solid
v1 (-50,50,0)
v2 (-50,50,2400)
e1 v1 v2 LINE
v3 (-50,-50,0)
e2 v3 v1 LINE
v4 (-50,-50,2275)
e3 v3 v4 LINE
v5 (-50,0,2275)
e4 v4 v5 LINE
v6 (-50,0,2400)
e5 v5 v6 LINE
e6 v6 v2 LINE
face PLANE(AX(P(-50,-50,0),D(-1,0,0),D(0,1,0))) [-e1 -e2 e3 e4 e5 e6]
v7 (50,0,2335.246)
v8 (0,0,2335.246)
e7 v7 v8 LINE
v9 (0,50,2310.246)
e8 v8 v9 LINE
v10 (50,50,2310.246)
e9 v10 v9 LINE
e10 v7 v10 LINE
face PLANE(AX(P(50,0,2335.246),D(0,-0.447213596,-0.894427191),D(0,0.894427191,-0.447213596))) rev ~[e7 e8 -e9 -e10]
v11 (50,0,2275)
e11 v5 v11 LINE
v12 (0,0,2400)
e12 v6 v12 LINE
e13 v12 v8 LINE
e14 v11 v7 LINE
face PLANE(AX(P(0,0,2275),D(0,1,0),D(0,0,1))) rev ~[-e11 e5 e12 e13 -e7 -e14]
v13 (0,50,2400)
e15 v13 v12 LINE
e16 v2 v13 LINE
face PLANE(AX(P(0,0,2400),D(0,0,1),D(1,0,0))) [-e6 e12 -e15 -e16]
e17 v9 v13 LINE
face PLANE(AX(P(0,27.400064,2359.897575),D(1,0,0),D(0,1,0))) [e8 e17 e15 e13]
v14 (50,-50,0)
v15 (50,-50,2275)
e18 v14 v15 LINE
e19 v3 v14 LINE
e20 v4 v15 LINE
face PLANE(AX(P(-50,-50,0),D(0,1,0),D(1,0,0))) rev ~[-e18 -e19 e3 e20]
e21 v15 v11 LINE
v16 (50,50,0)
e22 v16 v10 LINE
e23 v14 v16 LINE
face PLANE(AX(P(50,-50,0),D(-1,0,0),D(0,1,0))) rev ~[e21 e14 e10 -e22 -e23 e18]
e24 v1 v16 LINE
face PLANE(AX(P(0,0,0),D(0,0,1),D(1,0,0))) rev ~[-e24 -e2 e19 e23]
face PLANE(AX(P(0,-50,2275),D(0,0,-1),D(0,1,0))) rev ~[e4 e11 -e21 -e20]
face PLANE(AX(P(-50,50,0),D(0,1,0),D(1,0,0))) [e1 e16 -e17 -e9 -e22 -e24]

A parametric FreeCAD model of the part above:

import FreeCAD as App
import Part
import Sketcher


def add_polygon(sketch, points):
    """Adds a closed chain of lines whose ends are joined by coincident constraints."""
    first, n = sketch.GeometryCount, len(points)
    for a, b in zip(points, points[1:] + points[:1]):
        sketch.addGeometry(Part.LineSegment(App.Vector(*a, 0), App.Vector(*b, 0)), False)
    for i in range(n):
        sketch.addConstraint(Sketcher.Constraint("Coincident", first + i, 2, first + (i + 1) % n, 1))

doc = App.newDocument("Part")
params = doc.addObject("Spreadsheet::Sheet", "Params")
for row, (alias, value) in enumerate([
    ("sketch1_width", "100 mm"),
    ("pad1_length", "2400 mm"),
    ("sketch2_width", "50 mm"),
    ("sketch2_height", "125 mm"),
    ("sketch3_width", "50 mm"),
    ("pocket2_length", "50 mm"),
], start=1):
    params.set(f"A{row}", alias)
    params.set(f"B{row}", "=" + value)
    params.setAlias(f"B{row}", alias)

body = doc.addObject("PartDesign::Body", "Body")

# Sketch on XY plane
sketch1 = doc.addObject("Sketcher::SketchObject", "Sketch")
body.addObject(sketch1)
sketch1.AttachmentSupport = (doc.XY_Plane, [""])
sketch1.MapMode = "FlatFace"
add_polygon(sketch1, [(-50, 50), (-50, -50), (50, -50), (50, 50)])  # lines 0-3
sketch1.addConstraint([
    Sketcher.Constraint("Vertical", 0),
    Sketcher.Constraint("Horizontal", 1),
    Sketcher.Constraint("Vertical", 2),
    Sketcher.Constraint("Horizontal", 3),
    Sketcher.Constraint("Symmetric", 0, 2, 2, 2, -1, 1),
    Sketcher.Constraint("Equal", 3, 0),
    Sketcher.Constraint("DistanceX", 1, 1, 1, 2, 100.0),
])
sketch1.setExpression("Constraints[10]", "Params.sketch1_width")
pad1 = doc.addObject("PartDesign::Pad", "Pad")
body.addObject(pad1)
pad1.Profile = sketch1
pad1.setExpression("Length", "Params.pad1_length")

# Sketch on YZ plane
sketch2 = doc.addObject("Sketcher::SketchObject", "Sketch001")
body.addObject(sketch2)
sketch2.AttachmentSupport = (doc.YZ_Plane, [""])
sketch2.MapMode = "FlatFace"
add_polygon(sketch2, [(-50, 2400), (-50, 2275), (0, 2275), (0, 2400)])  # lines 0-3
sketch2.addConstraint([
    Sketcher.Constraint("Vertical", 0),
    Sketcher.Constraint("Horizontal", 1),
    Sketcher.Constraint("Vertical", 2),
    Sketcher.Constraint("Horizontal", 3),
    Sketcher.Constraint("PointOnObject", 1, 2, -2),
    Sketcher.Constraint("DistanceX", 1, 1, 1, 2, 50.0),
    Sketcher.Constraint("DistanceY", 0, 2, 0, 1, 125.0),
    Sketcher.Constraint("DistanceY", -1, 1, 0, 2, 2275.0),
])
sketch2.setExpression("Constraints[9]", "Params.sketch2_width")
sketch2.setExpression("Constraints[10]", "Params.sketch2_height")
pocket1 = doc.addObject("PartDesign::Pocket", "Pocket")
body.addObject(pocket1)
pocket1.Profile = sketch2
pocket1.Type = "ThroughAll"
pocket1.Midplane = True

# Sketch on YZ plane
sketch3 = doc.addObject("Sketcher::SketchObject", "Sketch002")
body.addObject(sketch3)
sketch3.AttachmentSupport = (doc.YZ_Plane, [""])
sketch3.MapMode = "FlatFace"
sketch3.AttachmentOffset = App.Placement(App.Vector(0, 0, 50), App.Rotation())
add_polygon(sketch3, [(50, 2310), (50, 2400), (0, 2400), (0, 2335)])  # lines 0-3
sketch3.addConstraint([
    Sketcher.Constraint("Vertical", 0),
    Sketcher.Constraint("Horizontal", 1),
    Sketcher.Constraint("Vertical", 2),
    Sketcher.Constraint("PointOnObject", 1, 2, -2),
    Sketcher.Constraint("DistanceX", 1, 2, 1, 1, 50.0),
    Sketcher.Constraint("DistanceY", -1, 1, 0, 2, 2400.0),
    Sketcher.Constraint("DistanceY", 3, 2, 2, 2, 25.0),
    Sketcher.Constraint("DistanceY", 0, 1, 0, 2, 89.754),
])
sketch3.setExpression("Constraints[8]", "Params.sketch3_width")
pocket2 = doc.addObject("PartDesign::Pocket", "Pocket001")
body.addObject(pocket2)
pocket2.Profile = sketch3
pocket2.setExpression("Length", "Params.pocket2_length")

doc.recompute()
